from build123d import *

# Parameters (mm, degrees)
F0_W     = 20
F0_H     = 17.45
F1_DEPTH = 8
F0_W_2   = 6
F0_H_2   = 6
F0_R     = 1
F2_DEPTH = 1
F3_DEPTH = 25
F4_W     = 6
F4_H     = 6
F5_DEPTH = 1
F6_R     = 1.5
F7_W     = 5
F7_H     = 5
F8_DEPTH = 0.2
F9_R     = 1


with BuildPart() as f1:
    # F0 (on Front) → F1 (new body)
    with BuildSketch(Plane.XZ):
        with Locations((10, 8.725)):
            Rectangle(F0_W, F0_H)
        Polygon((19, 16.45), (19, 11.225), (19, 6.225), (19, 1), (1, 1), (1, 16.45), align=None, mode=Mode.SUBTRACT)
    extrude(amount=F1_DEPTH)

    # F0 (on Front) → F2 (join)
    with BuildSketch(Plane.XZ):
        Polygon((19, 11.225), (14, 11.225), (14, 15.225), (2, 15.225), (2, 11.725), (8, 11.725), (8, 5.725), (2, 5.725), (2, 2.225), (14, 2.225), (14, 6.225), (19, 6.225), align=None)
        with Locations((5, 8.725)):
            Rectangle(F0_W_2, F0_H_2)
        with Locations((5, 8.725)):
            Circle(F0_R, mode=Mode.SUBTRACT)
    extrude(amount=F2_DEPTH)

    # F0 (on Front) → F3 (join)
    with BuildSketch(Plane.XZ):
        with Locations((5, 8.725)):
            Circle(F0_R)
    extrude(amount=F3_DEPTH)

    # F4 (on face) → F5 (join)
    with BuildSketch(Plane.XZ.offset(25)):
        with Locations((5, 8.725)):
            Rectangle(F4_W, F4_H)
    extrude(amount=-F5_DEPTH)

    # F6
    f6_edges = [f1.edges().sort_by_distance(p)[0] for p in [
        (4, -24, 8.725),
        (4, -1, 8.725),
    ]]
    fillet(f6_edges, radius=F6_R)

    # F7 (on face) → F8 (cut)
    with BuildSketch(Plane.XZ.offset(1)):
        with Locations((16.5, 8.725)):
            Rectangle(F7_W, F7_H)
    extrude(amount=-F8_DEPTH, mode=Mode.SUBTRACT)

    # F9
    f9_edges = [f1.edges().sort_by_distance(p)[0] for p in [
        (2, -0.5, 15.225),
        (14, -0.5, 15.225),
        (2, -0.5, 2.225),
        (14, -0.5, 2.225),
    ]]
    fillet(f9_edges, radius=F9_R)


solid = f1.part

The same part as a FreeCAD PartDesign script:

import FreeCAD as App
import Part
import Sketcher


def edges_at(feature, points):
    """Names of the edges that pass closest to the given points."""
    edges = feature.Shape.Edges
    near = lambda p: min(range(len(edges)), key=lambda i: edges[i].distToShape(Part.Vertex(*p))[0])
    return sorted({f"Edge{near(p) + 1}" for p in points})

doc = App.newDocument("Part")
body = doc.addObject("PartDesign::Body", "Body")

sketch1 = body.newObject("Sketcher::SketchObject", "Sketch")
sketch1.AttachmentSupport = (doc.getObject("XZ_Plane"), [""])
sketch1.MapMode = "FlatFace"
sketch1.addGeometry([
    Part.LineSegment(App.Vector(0, 17, 0), App.Vector(0, 0, 0)),
    Part.LineSegment(App.Vector(0, 0, 0), App.Vector(20, 0, 0)),
    Part.LineSegment(App.Vector(20, 0, 0), App.Vector(20, 17, 0)),
    Part.LineSegment(App.Vector(20, 17, 0), App.Vector(0, 17, 0)),
    Part.LineSegment(App.Vector(1, 16, 0), App.Vector(19, 16, 0)),
    Part.LineSegment(App.Vector(19, 16, 0), App.Vector(19, 1, 0)),
    Part.LineSegment(App.Vector(19, 1, 0), App.Vector(1, 1, 0)),
    Part.LineSegment(App.Vector(1, 1, 0), App.Vector(1, 16, 0)),
], False)
sketch1.addConstraint([
    Sketcher.Constraint("Coincident", 0, 2, 1, 1),
    Sketcher.Constraint("Coincident", 1, 2, 2, 1),
    Sketcher.Constraint("Coincident", 2, 2, 3, 1),
    Sketcher.Constraint("Coincident", 3, 2, 0, 1),
    Sketcher.Constraint("Coincident", 4, 2, 5, 1),
    Sketcher.Constraint("Coincident", 5, 2, 6, 1),
    Sketcher.Constraint("Coincident", 6, 2, 7, 1),
    Sketcher.Constraint("Coincident", 7, 2, 4, 1),
    Sketcher.Constraint("Vertical", 0),
    Sketcher.Constraint("Horizontal", 1),
    Sketcher.Constraint("Vertical", 2),
    Sketcher.Constraint("Horizontal", 3),
    Sketcher.Constraint("Horizontal", 4),
    Sketcher.Constraint("Vertical", 5),
    Sketcher.Constraint("Horizontal", 6),
    Sketcher.Constraint("Vertical", 7),
    Sketcher.Constraint("Coincident", 0, 2, -1, 1),
    Sketcher.Constraint("DistanceX", 1, 1, 1, 2, 20.0),
    Sketcher.Constraint("DistanceX", 4, 1, 4, 2, 18.0),
    Sketcher.Constraint("DistanceX", -1, 1, 4, 2, 19.0),
    Sketcher.Constraint("DistanceY", -1, 1, 5, 2, 1.0),
    Sketcher.Constraint("DistanceY", 4, 2, 2, 2, 1.0),
    Sketcher.Constraint("DistanceY", 0, 2, 0, 1, 17.45),
])
pad1 = body.newObject("PartDesign::Pad", "Pad")
pad1.Profile = sketch1
pad1.Length = 8

sketch2 = body.newObject("Sketcher::SketchObject", "Sketch001")
sketch2.AttachmentSupport = (doc.getObject("XZ_Plane"), [""])
sketch2.MapMode = "FlatFace"
sketch2.addGeometry([
    Part.LineSegment(App.Vector(19, 11.2, 0), App.Vector(14, 11.2, 0)),
    Part.LineSegment(App.Vector(14, 11.2, 0), App.Vector(14, 15.2, 0)),
    Part.LineSegment(App.Vector(14, 15.2, 0), App.Vector(2, 15.2, 0)),
    Part.LineSegment(App.Vector(2, 15.2, 0), App.Vector(2, 2.2, 0)),
    Part.LineSegment(App.Vector(2, 2.2, 0), App.Vector(14, 2.2, 0)),
    Part.LineSegment(App.Vector(14, 2.2, 0), App.Vector(14, 6.2, 0)),
    Part.LineSegment(App.Vector(14, 6.2, 0), App.Vector(19, 6.2, 0)),
    Part.LineSegment(App.Vector(19, 6.2, 0), App.Vector(19, 11.2, 0)),
    Part.Circle(App.Vector(5, 8.7, 0), App.Vector(0, 0, 1), 1),
], False)
sketch2.addConstraint([
    Sketcher.Constraint("Coincident", 0, 2, 1, 1),
    Sketcher.Constraint("Coincident", 1, 2, 2, 1),
    Sketcher.Constraint("Coincident", 2, 2, 3, 1),
    Sketcher.Constraint("Coincident", 3, 2, 4, 1),
    Sketcher.Constraint("Coincident", 4, 2, 5, 1),
    Sketcher.Constraint("Coincident", 5, 2, 6, 1),
    Sketcher.Constraint("Coincident", 6, 2, 7, 1),
    Sketcher.Constraint("Coincident", 7, 2, 0, 1),
    Sketcher.Constraint("Horizontal", 0),
    Sketcher.Constraint("Vertical", 1),
    Sketcher.Constraint("Horizontal", 2),
    Sketcher.Constraint("Vertical", 3),
    Sketcher.Constraint("Horizontal", 4),
    Sketcher.Constraint("Vertical", 5),
    Sketcher.Constraint("Horizontal", 6),
    Sketcher.Constraint("Vertical", 7),
    Sketcher.Constraint("Vertical", 1, 2, 4, 2),
    Sketcher.Constraint("Equal", 1, 5),
    Sketcher.Constraint("Equal", 6, 7),
    Sketcher.Constraint("Diameter", 8, 2.0),
    Sketcher.Constraint("DistanceX", 0, 2, 0, 1, 5.0),
    Sketcher.Constraint("DistanceX", 2, 2, 2, 1, 12.0),
    Sketcher.Constraint("DistanceY", 1, 1, 1, 2, 4.0),
    Sketcher.Constraint("DistanceX", -1, 1, 8, 3, 5.0),
    Sketcher.Constraint("DistanceX", -1, 1, 0, 2, 14.0),
    Sketcher.Constraint("DistanceY", 8, 3, 0, 2, 2.5),
    Sketcher.Constraint("DistanceY", -1, 1, 8, 3, 8.725),
])
pad2 = body.newObject("PartDesign::Pad", "Pad001")
pad2.Profile = sketch2
pad2.Length = 1

sketch3 = body.newObject("Sketcher::SketchObject", "Sketch002")
sketch3.AttachmentSupport = (doc.getObject("XZ_Plane"), [""])
sketch3.MapMode = "FlatFace"
sketch3.addGeometry(Part.Circle(App.Vector(5, 8.7, 0), App.Vector(0, 0, 1), 1), False)
sketch3.addConstraint([
    Sketcher.Constraint("Diameter", 0, 2.0),
    Sketcher.Constraint("DistanceX", -1, 1, 0, 3, 5.0),
    Sketcher.Constraint("DistanceY", -1, 1, 0, 3, 8.725),
])
pad3 = body.newObject("PartDesign::Pad", "Pad002")
pad3.Profile = sketch3
pad3.Length = 25

sketch4 = body.newObject("Sketcher::SketchObject", "Sketch003")
sketch4.AttachmentSupport = (doc.getObject("XZ_Plane"), [""])
sketch4.MapMode = "FlatFace"
sketch4.AttachmentOffset = App.Placement(App.Vector(0, 0, 25), App.Rotation())
sketch4.addGeometry([
    Part.LineSegment(App.Vector(2, 12, 0), App.Vector(2, 6, 0)),
    Part.LineSegment(App.Vector(2, 6, 0), App.Vector(8, 6, 0)),
    Part.LineSegment(App.Vector(8, 6, 0), App.Vector(8, 12, 0)),
    Part.LineSegment(App.Vector(8, 12, 0), App.Vector(2, 12, 0)),
], False)
sketch4.addConstraint([
    Sketcher.Constraint("Coincident", 0, 2, 1, 1),
    Sketcher.Constraint("Coincident", 1, 2, 2, 1),
    Sketcher.Constraint("Coincident", 2, 2, 3, 1),
    Sketcher.Constraint("Coincident", 3, 2, 0, 1),
    Sketcher.Constraint("Vertical", 0),
    Sketcher.Constraint("Horizontal", 1),
    Sketcher.Constraint("Vertical", 2),
    Sketcher.Constraint("Horizontal", 3),
    Sketcher.Constraint("Equal", 3, 0),
    Sketcher.Constraint("DistanceX", 1, 1, 1, 2, 6.0),
    Sketcher.Constraint("DistanceX", -1, 1, 0, 2, 2.0),
    Sketcher.Constraint("DistanceY", -1, 1, 0, 2, 5.725),
])
pad4 = body.newObject("PartDesign::Pad", "Pad003")
pad4.Profile = sketch4
pad4.Length = 1
pad4.Reversed = True
doc.recompute()

fillet = body.newObject("PartDesign::Fillet", "Fillet")
fillet.Base = (pad4, edges_at(pad4, [(4, -24, 8.725), (4, -1, 8.725)]))
fillet.Radius = 1.5

sketch5 = body.newObject("Sketcher::SketchObject", "Sketch004")
sketch5.AttachmentSupport = (doc.getObject("XZ_Plane"), [""])
sketch5.MapMode = "FlatFace"
sketch5.AttachmentOffset = App.Placement(App.Vector(0, 0, 1), App.Rotation())
sketch5.addGeometry([
    Part.LineSegment(App.Vector(14, 11, 0), App.Vector(14, 6, 0)),
    Part.LineSegment(App.Vector(14, 6, 0), App.Vector(19, 6, 0)),
    Part.LineSegment(App.Vector(19, 6, 0), App.Vector(19, 11, 0)),
    Part.LineSegment(App.Vector(19, 11, 0), App.Vector(14, 11, 0)),
], False)
sketch5.addConstraint([
    Sketcher.Constraint("Coincident", 0, 2, 1, 1),
    Sketcher.Constraint("Coincident", 1, 2, 2, 1),
    Sketcher.Constraint("Coincident", 2, 2, 3, 1),
    Sketcher.Constraint("Coincident", 3, 2, 0, 1),
    Sketcher.Constraint("Vertical", 0),
    Sketcher.Constraint("Horizontal", 1),
    Sketcher.Constraint("Vertical", 2),
    Sketcher.Constraint("Horizontal", 3),
    Sketcher.Constraint("Equal", 3, 0),
    Sketcher.Constraint("DistanceX", 1, 1, 1, 2, 5.0),
    Sketcher.Constraint("DistanceX", -1, 1, 0, 2, 14.0),
    Sketcher.Constraint("DistanceY", -1, 1, 0, 2, 6.225),
])
pocket1 = body.newObject("PartDesign::Pocket", "Pocket")
pocket1.Profile = sketch5
pocket1.Length = 0.2
doc.recompute()

fillet2 = body.newObject("PartDesign::Fillet", "Fillet001")
fillet2.Base = (pocket1, edges_at(pocket1, [
    (2, -0.5, 15.225),
    (14, -0.5, 15.225),
    (2, -0.5, 2.225),
    (14, -0.5, 2.225),
]))
fillet2.Radius = 1

doc.recompute()
